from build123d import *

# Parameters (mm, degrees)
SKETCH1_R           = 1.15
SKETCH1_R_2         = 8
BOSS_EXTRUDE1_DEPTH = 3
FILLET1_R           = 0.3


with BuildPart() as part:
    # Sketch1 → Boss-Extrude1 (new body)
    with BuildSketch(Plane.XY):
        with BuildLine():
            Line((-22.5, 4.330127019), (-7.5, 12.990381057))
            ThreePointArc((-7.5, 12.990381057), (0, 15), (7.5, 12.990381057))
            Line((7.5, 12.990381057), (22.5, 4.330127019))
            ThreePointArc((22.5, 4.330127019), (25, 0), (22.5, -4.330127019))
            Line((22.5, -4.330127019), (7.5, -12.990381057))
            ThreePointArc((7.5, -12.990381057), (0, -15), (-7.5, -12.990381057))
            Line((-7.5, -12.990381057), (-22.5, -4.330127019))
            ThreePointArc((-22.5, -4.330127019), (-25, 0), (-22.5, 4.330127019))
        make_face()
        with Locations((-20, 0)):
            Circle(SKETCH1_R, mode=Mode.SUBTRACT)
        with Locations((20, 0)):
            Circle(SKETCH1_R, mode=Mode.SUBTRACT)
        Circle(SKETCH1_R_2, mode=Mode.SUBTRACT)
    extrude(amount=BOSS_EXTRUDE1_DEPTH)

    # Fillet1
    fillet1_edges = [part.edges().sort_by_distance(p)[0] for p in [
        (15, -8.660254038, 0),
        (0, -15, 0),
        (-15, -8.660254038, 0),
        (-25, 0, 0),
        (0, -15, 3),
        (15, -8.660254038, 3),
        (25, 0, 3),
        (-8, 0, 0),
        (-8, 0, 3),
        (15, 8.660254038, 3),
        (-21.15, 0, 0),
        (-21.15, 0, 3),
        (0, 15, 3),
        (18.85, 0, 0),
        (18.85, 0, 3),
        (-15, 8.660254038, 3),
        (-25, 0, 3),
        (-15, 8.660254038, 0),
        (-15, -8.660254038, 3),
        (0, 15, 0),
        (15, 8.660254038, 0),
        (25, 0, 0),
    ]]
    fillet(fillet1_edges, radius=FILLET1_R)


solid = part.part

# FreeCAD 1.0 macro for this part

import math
import FreeCAD as App
import Part
import Sketcher

V = App.Vector
Q = App.Units.Quantity


def edges_at(feature, points):
    """Names of the edges that pass closest to the given points."""
    edges = feature.Shape.Edges
    near = lambda p: min(range(len(edges)), key=lambda i: edges[i].distToShape(Part.Vertex(*p))[0])
    return sorted({f"Edge{near(p) + 1}" for p in points})

doc = App.newDocument("Part")
body = doc.addObject("PartDesign::Body", "Body")

sketch1 = body.newObject("Sketcher::SketchObject", "Sketch")
sketch1.AttachmentSupport = (doc.getObject("XY_Plane"), [""])
sketch1.MapMode = "FlatFace"
sketch1.addGeometry(Part.LineSegment(V(-7.5, 13, 0), V(-22.5, 4.3, 0)), False)
sketch1.addGeometry(Part.ArcOfCircle(Part.Circle(V(-20, 0, 0), V(0, 0, 1), 5), math.radians(120), math.radians(240)), False)
sketch1.addGeometry(Part.LineSegment(V(-22.5, -4.3, 0), V(-7.5, -13, 0)), False)
sketch1.addGeometry(Part.ArcOfCircle(Part.Circle(V(0, 0, 0), V(0, 0, 1), 15), math.radians(-120), math.radians(-60)), False)
sketch1.addGeometry(Part.LineSegment(V(7.5, -13, 0), V(22.5, -4.3, 0)), False)
sketch1.addGeometry(Part.ArcOfCircle(Part.Circle(V(20, 0, 0), V(0, 0, 1), 5), math.radians(-60), math.radians(60)), False)
sketch1.addGeometry(Part.LineSegment(V(22.5, 4.3, 0), V(7.5, 13, 0)), False)
sketch1.addGeometry(Part.ArcOfCircle(Part.Circle(V(0, 0, 0), V(0, 0, 1), 15), math.radians(60), math.radians(120)), False)
sketch1.addGeometry(Part.Circle(V(20, 0, 0), V(0, 0, 1), 1.1), False)
sketch1.addGeometry(Part.Circle(V(0, 0, 0), V(0, 0, 1), 8), False)
sketch1.addGeometry(Part.Circle(V(-20, 0, 0), V(0, 0, 1), 1.1), False)
sketch1.addConstraint(Sketcher.Constraint("Tangent", 0, 2, 1, 1))
sketch1.addConstraint(Sketcher.Constraint("Tangent", 1, 2, 2, 1))
sketch1.addConstraint(Sketcher.Constraint("Tangent", 2, 2, 3, 1))
sketch1.addConstraint(Sketcher.Constraint("Tangent", 3, 2, 4, 1))
sketch1.addConstraint(Sketcher.Constraint("Tangent", 4, 2, 5, 1))
sketch1.addConstraint(Sketcher.Constraint("Tangent", 5, 2, 6, 1))
sketch1.addConstraint(Sketcher.Constraint("Tangent", 6, 2, 7, 1))
sketch1.addConstraint(Sketcher.Constraint("Tangent", 7, 2, 0, 1))
sketch1.addConstraint(Sketcher.Constraint("Coincident", 3, 3, -1, 1))
sketch1.addConstraint(Sketcher.Constraint("Coincident", 7, 3, -1, 1))
sketch1.addConstraint(Sketcher.Constraint("Coincident", 9, 3, -1, 1))
sketch1.addConstraint(Sketcher.Constraint("Coincident", 8, 3, 5, 3))
sketch1.addConstraint(Sketcher.Constraint("Coincident", 10, 3, 1, 3))
sketch1.addConstraint(Sketcher.Constraint("Equal", 1, 5))
sketch1.addConstraint(Sketcher.Constraint("Equal", 3, 7))
sketch1.addConstraint(Sketcher.Constraint("Equal", 8, 10))
sketch1.addConstraint(Sketcher.Constraint("Symmetric", 1, 3, 5, 3, -1, 1))
sketch1.addConstraint(Sketcher.Constraint("PointOnObject", 1, 3, -1))
sketch1.addConstraint(Sketcher.Constraint("Diameter", 9, Q("16 mm")))
sketch1.addConstraint(Sketcher.Constraint("Radius", 1, Q("5 mm")))
sketch1.addConstraint(Sketcher.Constraint("Radius", 3, Q("15 mm")))
sketch1.addConstraint(Sketcher.Constraint("Diameter", 8, Q("2.3 mm")))
sketch1.addConstraint(Sketcher.Constraint("Angle", 0, Q("-150 deg")))
pad1 = body.newObject("PartDesign::Pad", "Pad")
pad1.Profile = sketch1
pad1.Length = 3
doc.recompute()

fillet = body.newObject("PartDesign::Fillet", "Fillet")
fillet.Base = (pad1, edges_at(pad1, [
    (15, -8.66, 0),
    (0, -15, 0),
    (-15, -8.66, 0),
    (-25, 0, 0),
    (0, -15, 3),
    (15, -8.66, 3),
    (25, 0, 3),
    (-8, 0, 0),
    (-8, 0, 3),
    (15, 8.66, 3),
    (-21.15, 0, 0),
    (-21.15, 0, 3),
    (0, 15, 3),
    (18.85, 0, 0),
    (18.85, 0, 3),
    (-15, 8.66, 3),
    (-25, 0, 3),
    (-15, 8.66, 0),
    (-15, -8.66, 3),
    (0, 15, 0),
    (15, 8.66, 0),
    (25, 0, 0),
]))
fillet.Radius = 0.3

doc.recompute()
